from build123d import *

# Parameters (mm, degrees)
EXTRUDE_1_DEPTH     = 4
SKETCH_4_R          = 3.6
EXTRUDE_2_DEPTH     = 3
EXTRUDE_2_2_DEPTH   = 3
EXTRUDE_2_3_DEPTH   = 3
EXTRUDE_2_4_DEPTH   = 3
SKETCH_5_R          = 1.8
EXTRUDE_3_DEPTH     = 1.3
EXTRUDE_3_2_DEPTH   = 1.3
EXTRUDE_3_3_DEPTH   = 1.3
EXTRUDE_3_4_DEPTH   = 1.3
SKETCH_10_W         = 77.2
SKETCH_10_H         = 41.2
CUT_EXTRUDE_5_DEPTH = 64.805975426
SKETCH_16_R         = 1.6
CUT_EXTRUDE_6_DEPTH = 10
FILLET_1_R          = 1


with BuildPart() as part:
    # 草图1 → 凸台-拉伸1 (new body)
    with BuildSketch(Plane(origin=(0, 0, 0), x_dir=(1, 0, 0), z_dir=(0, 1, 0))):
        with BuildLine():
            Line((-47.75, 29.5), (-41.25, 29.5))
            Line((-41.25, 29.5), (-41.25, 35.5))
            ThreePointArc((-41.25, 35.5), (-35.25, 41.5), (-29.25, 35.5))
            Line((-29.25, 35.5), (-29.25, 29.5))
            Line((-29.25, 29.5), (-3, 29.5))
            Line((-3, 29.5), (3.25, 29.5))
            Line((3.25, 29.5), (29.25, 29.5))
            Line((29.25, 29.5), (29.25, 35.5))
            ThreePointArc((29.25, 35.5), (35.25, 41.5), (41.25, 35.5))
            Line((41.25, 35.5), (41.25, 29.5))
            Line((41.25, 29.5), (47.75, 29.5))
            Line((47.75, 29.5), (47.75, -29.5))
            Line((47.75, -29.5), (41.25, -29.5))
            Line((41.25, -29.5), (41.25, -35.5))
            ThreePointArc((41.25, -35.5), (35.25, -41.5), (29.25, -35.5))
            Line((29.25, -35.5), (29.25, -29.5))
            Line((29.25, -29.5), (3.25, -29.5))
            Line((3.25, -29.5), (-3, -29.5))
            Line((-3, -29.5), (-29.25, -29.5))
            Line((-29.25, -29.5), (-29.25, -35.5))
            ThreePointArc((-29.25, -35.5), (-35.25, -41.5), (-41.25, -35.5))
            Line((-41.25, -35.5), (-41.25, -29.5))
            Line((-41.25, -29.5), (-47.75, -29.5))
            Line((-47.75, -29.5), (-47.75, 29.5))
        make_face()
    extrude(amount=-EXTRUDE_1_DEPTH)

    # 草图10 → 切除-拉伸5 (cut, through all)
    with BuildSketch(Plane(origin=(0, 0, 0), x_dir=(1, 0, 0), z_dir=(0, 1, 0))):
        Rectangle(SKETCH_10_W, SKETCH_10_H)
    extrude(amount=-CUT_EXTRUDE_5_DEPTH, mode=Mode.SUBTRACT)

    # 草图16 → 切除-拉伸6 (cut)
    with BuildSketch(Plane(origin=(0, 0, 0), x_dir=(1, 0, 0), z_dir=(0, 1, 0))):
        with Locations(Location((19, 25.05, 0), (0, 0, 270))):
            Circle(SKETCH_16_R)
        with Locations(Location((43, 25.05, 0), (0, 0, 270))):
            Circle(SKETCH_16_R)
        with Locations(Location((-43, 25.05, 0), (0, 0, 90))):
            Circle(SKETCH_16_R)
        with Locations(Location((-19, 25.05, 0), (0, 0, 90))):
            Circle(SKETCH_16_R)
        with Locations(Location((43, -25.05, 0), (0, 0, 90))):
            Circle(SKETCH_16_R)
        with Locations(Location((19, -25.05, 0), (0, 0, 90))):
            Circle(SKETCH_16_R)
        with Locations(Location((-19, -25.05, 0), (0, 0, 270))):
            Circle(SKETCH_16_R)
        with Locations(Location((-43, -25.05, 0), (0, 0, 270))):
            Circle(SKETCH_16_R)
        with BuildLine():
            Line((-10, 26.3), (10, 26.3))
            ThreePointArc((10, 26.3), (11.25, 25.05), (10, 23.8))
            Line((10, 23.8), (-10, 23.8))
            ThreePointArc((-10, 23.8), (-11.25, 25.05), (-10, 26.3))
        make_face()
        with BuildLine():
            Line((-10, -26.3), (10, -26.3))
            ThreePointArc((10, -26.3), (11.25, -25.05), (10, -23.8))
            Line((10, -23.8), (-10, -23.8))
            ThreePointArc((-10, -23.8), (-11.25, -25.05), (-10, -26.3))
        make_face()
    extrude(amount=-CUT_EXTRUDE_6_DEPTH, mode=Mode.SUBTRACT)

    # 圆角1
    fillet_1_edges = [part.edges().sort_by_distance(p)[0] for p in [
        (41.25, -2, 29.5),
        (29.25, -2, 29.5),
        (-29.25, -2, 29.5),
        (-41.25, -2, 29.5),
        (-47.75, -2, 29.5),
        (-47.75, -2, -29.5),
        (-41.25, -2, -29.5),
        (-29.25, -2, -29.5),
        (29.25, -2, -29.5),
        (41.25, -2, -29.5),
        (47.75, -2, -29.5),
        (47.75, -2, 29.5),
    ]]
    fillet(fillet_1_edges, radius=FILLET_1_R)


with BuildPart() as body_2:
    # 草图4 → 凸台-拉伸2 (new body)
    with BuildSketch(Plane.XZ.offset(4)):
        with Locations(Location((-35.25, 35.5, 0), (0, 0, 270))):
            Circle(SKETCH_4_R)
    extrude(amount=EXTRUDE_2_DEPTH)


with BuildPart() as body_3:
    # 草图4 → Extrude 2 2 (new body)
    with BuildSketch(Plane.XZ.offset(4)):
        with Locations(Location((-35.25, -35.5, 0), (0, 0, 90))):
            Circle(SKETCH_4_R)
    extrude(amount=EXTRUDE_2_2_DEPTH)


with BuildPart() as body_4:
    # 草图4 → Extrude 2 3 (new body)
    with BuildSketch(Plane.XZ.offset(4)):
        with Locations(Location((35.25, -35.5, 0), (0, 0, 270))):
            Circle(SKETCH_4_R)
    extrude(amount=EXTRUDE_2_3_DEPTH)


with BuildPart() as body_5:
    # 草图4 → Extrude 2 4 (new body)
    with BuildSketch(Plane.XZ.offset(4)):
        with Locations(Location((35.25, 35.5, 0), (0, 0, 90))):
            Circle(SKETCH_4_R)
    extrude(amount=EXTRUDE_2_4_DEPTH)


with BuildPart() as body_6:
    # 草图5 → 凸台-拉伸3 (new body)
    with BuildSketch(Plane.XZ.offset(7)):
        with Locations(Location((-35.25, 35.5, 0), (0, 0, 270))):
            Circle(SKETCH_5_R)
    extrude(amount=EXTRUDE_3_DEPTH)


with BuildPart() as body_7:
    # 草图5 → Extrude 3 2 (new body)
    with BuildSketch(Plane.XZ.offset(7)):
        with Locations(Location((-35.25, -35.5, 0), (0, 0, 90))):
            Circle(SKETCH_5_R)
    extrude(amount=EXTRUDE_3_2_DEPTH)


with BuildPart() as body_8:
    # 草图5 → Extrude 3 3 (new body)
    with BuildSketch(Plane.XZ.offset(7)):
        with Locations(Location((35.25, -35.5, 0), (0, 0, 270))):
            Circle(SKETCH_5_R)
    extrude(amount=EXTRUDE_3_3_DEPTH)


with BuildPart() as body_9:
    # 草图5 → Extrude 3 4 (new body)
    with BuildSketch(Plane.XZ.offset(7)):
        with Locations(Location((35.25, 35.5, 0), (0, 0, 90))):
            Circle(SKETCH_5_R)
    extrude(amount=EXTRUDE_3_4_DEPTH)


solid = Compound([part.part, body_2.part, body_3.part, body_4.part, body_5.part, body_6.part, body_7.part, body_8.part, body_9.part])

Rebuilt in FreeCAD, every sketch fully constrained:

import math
import FreeCAD as App
import Part
import Sketcher


def edges_at(feature, points):
    """Names of the edges that pass closest to the given points."""
    edges = feature.Shape.Edges
    near = lambda p: min(range(len(edges)), key=lambda i: edges[i].distToShape(Part.Vertex(*p))[0])
    return sorted({f"Edge{near(p) + 1}" for p in points})


def add_polygon(sketch, points):
    """Adds a closed chain of lines whose ends are joined by coincident constraints."""
    first, n = sketch.GeometryCount, len(points)
    for a, b in zip(points, points[1:] + points[:1]):
        sketch.addGeometry(Part.LineSegment(App.Vector(*a, 0), App.Vector(*b, 0)), False)
    for i in range(n):
        sketch.addConstraint(Sketcher.Constraint("Coincident", first + i, 2, first + (i + 1) % n, 1))

doc = App.newDocument("Part")
body = doc.addObject("PartDesign::Body", "Body")

# Sketch on XZ plane
sketch1 = body.newObject("Sketcher::SketchObject", "Sketch")
sketch1.AttachmentSupport = (doc.getObject("XZ_Plane"), [""])
sketch1.MapMode = "FlatFace"
sketch1.addGeometry([
    Part.LineSegment(App.Vector(-41, -30, 0), App.Vector(-48, -30, 0)),  # 0
    Part.LineSegment(App.Vector(-48, -30, 0), App.Vector(-48, 30, 0)),  # 1
    Part.LineSegment(App.Vector(-48, 30, 0), App.Vector(-41, 30, 0)),  # 2
    Part.LineSegment(App.Vector(-41, 30, 0), App.Vector(-41, 36, 0)),  # 3
    Part.ArcOfCircle(Part.Circle(App.Vector(-35, 36, 0), App.Vector(0, 0, 1), 6), math.radians(0), math.radians(180)),  # 4
    Part.LineSegment(App.Vector(-29, 36, 0), App.Vector(-29, 30, 0)),  # 5
    Part.LineSegment(App.Vector(-29, 30, 0), App.Vector(29, 30, 0)),  # 6
    Part.LineSegment(App.Vector(29, 30, 0), App.Vector(29, 36, 0)),  # 7
    Part.ArcOfCircle(Part.Circle(App.Vector(35, 36, 0), App.Vector(0, 0, 1), 6), math.radians(0), math.radians(180)),  # 8
    Part.LineSegment(App.Vector(41, 36, 0), App.Vector(41, 30, 0)),  # 9
    Part.LineSegment(App.Vector(41, 30, 0), App.Vector(48, 30, 0)),  # 10
    Part.LineSegment(App.Vector(48, 30, 0), App.Vector(48, -30, 0)),  # 11
    Part.LineSegment(App.Vector(48, -30, 0), App.Vector(41, -30, 0)),  # 12
    Part.LineSegment(App.Vector(41, -30, 0), App.Vector(41, -36, 0)),  # 13
    Part.ArcOfCircle(Part.Circle(App.Vector(35, -36, 0), App.Vector(0, 0, 1), 6), math.radians(180), math.radians(360)),  # 14
    Part.LineSegment(App.Vector(29, -36, 0), App.Vector(29, -30, 0)),  # 15
    Part.LineSegment(App.Vector(29, -30, 0), App.Vector(-29, -30, 0)),  # 16
    Part.LineSegment(App.Vector(-29, -30, 0), App.Vector(-29, -36, 0)),  # 17
    Part.ArcOfCircle(Part.Circle(App.Vector(-35, -36, 0), App.Vector(0, 0, 1), 6), math.radians(180), math.radians(360)),  # 18
    Part.LineSegment(App.Vector(-41, -36, 0), App.Vector(-41, -30, 0)),  # 19
], False)
sketch1.addConstraint([
    Sketcher.Constraint("Coincident", 0, 2, 1, 1),
    Sketcher.Constraint("Coincident", 1, 2, 2, 1),
    Sketcher.Constraint("Coincident", 2, 2, 3, 1),
    Sketcher.Constraint("Tangent", 3, 2, 4, 2),
    Sketcher.Constraint("Tangent", 4, 1, 5, 1),
    Sketcher.Constraint("Coincident", 5, 2, 6, 1),
    Sketcher.Constraint("Coincident", 6, 2, 7, 1),
    Sketcher.Constraint("Tangent", 7, 2, 8, 2),
    Sketcher.Constraint("Tangent", 8, 1, 9, 1),
    Sketcher.Constraint("Coincident", 9, 2, 10, 1),
    Sketcher.Constraint("Coincident", 10, 2, 11, 1),
    Sketcher.Constraint("Coincident", 11, 2, 12, 1),
    Sketcher.Constraint("Coincident", 12, 2, 13, 1),
    Sketcher.Constraint("Tangent", 13, 2, 14, 2),
    Sketcher.Constraint("Tangent", 14, 1, 15, 1),
    Sketcher.Constraint("Coincident", 15, 2, 16, 1),
    Sketcher.Constraint("Coincident", 16, 2, 17, 1),
    Sketcher.Constraint("Tangent", 17, 2, 18, 2),
    Sketcher.Constraint("Tangent", 18, 1, 19, 1),
    Sketcher.Constraint("Coincident", 19, 2, 0, 1),
    Sketcher.Constraint("Horizontal", 0),
    Sketcher.Constraint("Vertical", 1),
    Sketcher.Constraint("Horizontal", 2),
    Sketcher.Constraint("Vertical", 3),
    Sketcher.Constraint("Vertical", 5),
    Sketcher.Constraint("Horizontal", 6),
    Sketcher.Constraint("Vertical", 7),
    Sketcher.Constraint("Vertical", 9),
    Sketcher.Constraint("Horizontal", 10),
    Sketcher.Constraint("Vertical", 11),
    Sketcher.Constraint("Horizontal", 12),
    Sketcher.Constraint("Vertical", 13),
    Sketcher.Constraint("Vertical", 15),
    Sketcher.Constraint("Horizontal", 16),
    Sketcher.Constraint("Vertical", 17),
    Sketcher.Constraint("Vertical", 19),
    Sketcher.Constraint("Equal", 4, 8),
    Sketcher.Constraint("Equal", 8, 14),
    Sketcher.Constraint("Equal", 14, 18),
    Sketcher.Constraint("Symmetric", 4, 3, 14, 3, -1, 1),
    Sketcher.Constraint("Symmetric", 8, 3, 18, 3, -1, 1),
    Sketcher.Constraint("Symmetric", 0, 2, 10, 2, -1, 1),
    Sketcher.Constraint("Symmetric", 4, 3, 8, 3, -2),
    Sketcher.Constraint("Horizontal", 2, 2, 5, 2),
    Sketcher.Constraint("Horizontal", 6, 2, 9, 2),
    Sketcher.Constraint("Horizontal", 0, 2, 11, 2),
    Sketcher.Constraint("Horizontal", 12, 2, 15, 2),
    Sketcher.Constraint("Radius", 4, 6.0),
    Sketcher.Constraint("DistanceY", 1, 1, 1, 2, 59.0),
    Sketcher.Constraint("DistanceY", 3, 1, 3, 2, 6.0),
    Sketcher.Constraint("DistanceX", 0, 2, 0, 1, 6.5),
    Sketcher.Constraint("DistanceX", 6, 1, 6, 2, 58.5),
])
pad1 = body.newObject("PartDesign::Pad", "Pad")
pad1.Profile = sketch1
pad1.Length = 4

# Sketch on XZ plane
sketch2 = body.newObject("Sketcher::SketchObject", "Sketch001")
sketch2.AttachmentSupport = (doc.getObject("XZ_Plane"), [""])
sketch2.MapMode = "FlatFace"
add_polygon(sketch2, [(-39, -21), (-39, 21), (39, 21), (39, -21)])  # lines 0-3
sketch2.addConstraint([
    Sketcher.Constraint("Vertical", 0),
    Sketcher.Constraint("Horizontal", 1),
    Sketcher.Constraint("Vertical", 2),
    Sketcher.Constraint("Horizontal", 3),
    Sketcher.Constraint("Symmetric", 0, 2, 2, 2, -1, 1),
    Sketcher.Constraint("DistanceX", 1, 1, 1, 2, 77.2),
    Sketcher.Constraint("DistanceY", 0, 1, 0, 2, 41.2),
])
pocket1 = body.newObject("PartDesign::Pocket", "Pocket")
pocket1.Profile = sketch2
pocket1.Type = "ThroughAll"
pocket1.Reversed = True

# Sketch on XZ plane
sketch3 = body.newObject("Sketcher::SketchObject", "Sketch002")
sketch3.AttachmentSupport = (doc.getObject("XZ_Plane"), [""])
sketch3.MapMode = "FlatFace"
sketch3.addGeometry([
    Part.Circle(App.Vector(19, -25.1, 0), App.Vector(0, 0, 1), 1.6),  # 0
    Part.Circle(App.Vector(43, -25.1, 0), App.Vector(0, 0, 1), 1.6),  # 1
    Part.Circle(App.Vector(-43, -25.1, 0), App.Vector(0, 0, 1), 1.6),  # 2
    Part.Circle(App.Vector(-19, -25.1, 0), App.Vector(0, 0, 1), 1.6),  # 3
    Part.Circle(App.Vector(43, 25.1, 0), App.Vector(0, 0, 1), 1.6),  # 4
    Part.Circle(App.Vector(19, 25.1, 0), App.Vector(0, 0, 1), 1.6),  # 5
    Part.Circle(App.Vector(-19, 25.1, 0), App.Vector(0, 0, 1), 1.6),  # 6
    Part.Circle(App.Vector(-43, 25.1, 0), App.Vector(0, 0, 1), 1.6),  # 7
    Part.LineSegment(App.Vector(10, -26.3, 0), App.Vector(-10, -26.3, 0)),  # 8
    Part.ArcOfCircle(Part.Circle(App.Vector(-10, -25.1, 0), App.Vector(0, 0, 1), 1.2), math.radians(90), math.radians(270)),  # 9
    Part.LineSegment(App.Vector(-10, -23.8, 0), App.Vector(10, -23.8, 0)),  # 10
    Part.ArcOfCircle(Part.Circle(App.Vector(10, -25.1, 0), App.Vector(0, 0, 1), 1.2), math.radians(-90), math.radians(90)),  # 11
    Part.LineSegment(App.Vector(-10, 26.3, 0), App.Vector(10, 26.3, 0)),  # 12
    Part.ArcOfCircle(Part.Circle(App.Vector(10, 25.1, 0), App.Vector(0, 0, 1), 1.2), math.radians(-90), math.radians(90)),  # 13
    Part.LineSegment(App.Vector(10, 23.8, 0), App.Vector(-10, 23.8, 0)),  # 14
    Part.ArcOfCircle(Part.Circle(App.Vector(-10, 25.1, 0), App.Vector(0, 0, 1), 1.2), math.radians(90), math.radians(270)),  # 15
], False)
sketch3.addConstraint([
    Sketcher.Constraint("Tangent", 8, 2, 9, 2),
    Sketcher.Constraint("Tangent", 9, 1, 10, 1),
    Sketcher.Constraint("Tangent", 10, 2, 11, 2),
    Sketcher.Constraint("Tangent", 11, 1, 8, 1),
    Sketcher.Constraint("Tangent", 12, 2, 13, 2),
    Sketcher.Constraint("Tangent", 13, 1, 14, 1),
    Sketcher.Constraint("Tangent", 14, 2, 15, 2),
    Sketcher.Constraint("Tangent", 15, 1, 12, 1),
    Sketcher.Constraint("Horizontal", 8),
    Sketcher.Constraint("Horizontal", 10),
    Sketcher.Constraint("Horizontal", 12),
    Sketcher.Constraint("Horizontal", 14),
    Sketcher.Constraint("Equal", 0, 1),
    Sketcher.Constraint("Equal", 1, 2),
    Sketcher.Constraint("Equal", 2, 3),
    Sketcher.Constraint("Equal", 3, 4),
    Sketcher.Constraint("Equal", 4, 5),
    Sketcher.Constraint("Equal", 5, 6),
    Sketcher.Constraint("Equal", 6, 7),
    Sketcher.Constraint("Equal", 11, 13),
    Sketcher.Constraint("Symmetric", 2, 3, 4, 3, -1, 1),
    Sketcher.Constraint("Symmetric", 3, 3, 5, 3, -1, 1),
    Sketcher.Constraint("Symmetric", 0, 3, 6, 3, -1, 1),
    Sketcher.Constraint("Symmetric", 1, 3, 7, 3, -1, 1),
    Sketcher.Constraint("Symmetric", 9, 3, 13, 3, -1, 1),
    Sketcher.Constraint("Symmetric", 1, 3, 2, 3, -2),
    Sketcher.Constraint("Symmetric", 0, 3, 3, 3, -2),
    Sketcher.Constraint("Horizontal", 0, 3, 1, 3),
    Sketcher.Constraint("Horizontal", 3, 3, 9, 3),
    Sketcher.Constraint("Vertical", 11, 3, 13, 3),
    Sketcher.Constraint("Vertical", 9, 3, 15, 3),
    Sketcher.Constraint("Diameter", 0, 3.2),
    Sketcher.Constraint("DistanceX", 8, 2, 8, 1, 20.0),
    Sketcher.Constraint("Radius", 9, 1.25),
    Sketcher.Constraint("DistanceX", -1, 1, 0, 3, 19.0),
    Sketcher.Constraint("DistanceX", -1, 1, 1, 3, 43.0),
    Sketcher.Constraint("DistanceY", 8, 2, -1, 1, 26.3),
])
pocket2 = body.newObject("PartDesign::Pocket", "Pocket001")
pocket2.Profile = sketch3
pocket2.Length = 10
pocket2.Reversed = True
doc.recompute()

fillet = body.newObject("PartDesign::Fillet", "Fillet")
fillet.Base = (pocket2, edges_at(pocket2, [
    (41.25, -2, 29.5),
    (29.25, -2, 29.5),
    (-29.25, -2, 29.5),
    (-41.25, -2, 29.5),
    (-47.75, -2, 29.5),
    (-47.75, -2, -29.5),
    (-41.25, -2, -29.5),
    (-29.25, -2, -29.5),
    (29.25, -2, -29.5),
    (41.25, -2, -29.5),
    (47.75, -2, -29.5),
    (47.75, -2, 29.5),
]))
fillet.Radius = 1
body2 = doc.addObject("PartDesign::Body", "Body001")

# Sketch on XZ plane
sketch4 = body2.newObject("Sketcher::SketchObject", "Sketch003")
sketch4.AttachmentSupport = (doc.getObject("XZ_Plane001"), [""])
sketch4.MapMode = "FlatFace"
sketch4.AttachmentOffset = App.Placement(App.Vector(0, 0, 4), App.Rotation())
sketch4.addGeometry(Part.Circle(App.Vector(-35.2, 35.5, 0), App.Vector(0, 0, 1), 3.6), False)
sketch4.addConstraint([
    Sketcher.Constraint("Diameter", 0, 7.2),
    Sketcher.Constraint("DistanceY", -1, 1, 0, 3, 35.5),
    Sketcher.Constraint("DistanceX", 0, 3, -1, 1, 35.25),
])
pad2 = body2.newObject("PartDesign::Pad", "Pad001")
pad2.Profile = sketch4
pad2.Length = 3
body3 = doc.addObject("PartDesign::Body", "Body002")

# Sketch on XZ plane
sketch5 = body3.newObject("Sketcher::SketchObject", "Sketch004")
sketch5.AttachmentSupport = (doc.getObject("XZ_Plane002"), [""])
sketch5.MapMode = "FlatFace"
sketch5.AttachmentOffset = App.Placement(App.Vector(0, 0, 4), App.Rotation())
sketch5.addGeometry(Part.Circle(App.Vector(-35.2, -35.5, 0), App.Vector(0, 0, 1), 3.6), False)
sketch5.addConstraint([
    Sketcher.Constraint("Diameter", 0, 7.2),
    Sketcher.Constraint("DistanceY", 0, 3, -1, 1, 35.5),
    Sketcher.Constraint("DistanceX", 0, 3, -1, 1, 35.25),
])
pad3 = body3.newObject("PartDesign::Pad", "Pad002")
pad3.Profile = sketch5
pad3.Length = 3
body4 = doc.addObject("PartDesign::Body", "Body003")

# Sketch on XZ plane
sketch6 = body4.newObject("Sketcher::SketchObject", "Sketch005")
sketch6.AttachmentSupport = (doc.getObject("XZ_Plane003"), [""])
sketch6.MapMode = "FlatFace"
sketch6.AttachmentOffset = App.Placement(App.Vector(0, 0, 4), App.Rotation())
sketch6.addGeometry(Part.Circle(App.Vector(35.2, -35.5, 0), App.Vector(0, 0, 1), 3.6), False)
sketch6.addConstraint([
    Sketcher.Constraint("Diameter", 0, 7.2),
    Sketcher.Constraint("DistanceY", 0, 3, -1, 1, 35.5),
    Sketcher.Constraint("DistanceX", -1, 1, 0, 3, 35.25),
])
pad4 = body4.newObject("PartDesign::Pad", "Pad003")
pad4.Profile = sketch6
pad4.Length = 3
body5 = doc.addObject("PartDesign::Body", "Body004")

# Sketch on XZ plane
sketch7 = body5.newObject("Sketcher::SketchObject", "Sketch006")
sketch7.AttachmentSupport = (doc.getObject("XZ_Plane004"), [""])
sketch7.MapMode = "FlatFace"
sketch7.AttachmentOffset = App.Placement(App.Vector(0, 0, 4), App.Rotation())
sketch7.addGeometry(Part.Circle(App.Vector(35.2, 35.5, 0), App.Vector(0, 0, 1), 3.6), False)
sketch7.addConstraint([
    Sketcher.Constraint("Diameter", 0, 7.2),
    Sketcher.Constraint("DistanceY", -1, 1, 0, 3, 35.5),
    Sketcher.Constraint("DistanceX", -1, 1, 0, 3, 35.25),
])
pad5 = body5.newObject("PartDesign::Pad", "Pad004")
pad5.Profile = sketch7
pad5.Length = 3
body6 = doc.addObject("PartDesign::Body", "Body005")

# Sketch on XZ plane
sketch8 = body6.newObject("Sketcher::SketchObject", "Sketch007")
sketch8.AttachmentSupport = (doc.getObject("XZ_Plane005"), [""])
sketch8.MapMode = "FlatFace"
sketch8.AttachmentOffset = App.Placement(App.Vector(0, 0, 7), App.Rotation())
sketch8.addGeometry(Part.Circle(App.Vector(-35.2, 35.5, 0), App.Vector(0, 0, 1), 1.8), False)
sketch8.addConstraint([
    Sketcher.Constraint("Diameter", 0, 3.6),
    Sketcher.Constraint("DistanceY", -1, 1, 0, 3, 35.5),
    Sketcher.Constraint("DistanceX", 0, 3, -1, 1, 35.25),
])
pad6 = body6.newObject("PartDesign::Pad", "Pad005")
pad6.Profile = sketch8
pad6.Length = 1.3
body7 = doc.addObject("PartDesign::Body", "Body006")

# Sketch on XZ plane
sketch9 = body7.newObject("Sketcher::SketchObject", "Sketch008")
sketch9.AttachmentSupport = (doc.getObject("XZ_Plane006"), [""])
sketch9.MapMode = "FlatFace"
sketch9.AttachmentOffset = App.Placement(App.Vector(0, 0, 7), App.Rotation())
sketch9.addGeometry(Part.Circle(App.Vector(-35.2, -35.5, 0), App.Vector(0, 0, 1), 1.8), False)
sketch9.addConstraint([
    Sketcher.Constraint("Diameter", 0, 3.6),
    Sketcher.Constraint("DistanceY", 0, 3, -1, 1, 35.5),
    Sketcher.Constraint("DistanceX", 0, 3, -1, 1, 35.25),
])
pad7 = body7.newObject("PartDesign::Pad", "Pad006")
pad7.Profile = sketch9
pad7.Length = 1.3
body8 = doc.addObject("PartDesign::Body", "Body007")

# Sketch on XZ plane
sketch10 = body8.newObject("Sketcher::SketchObject", "Sketch009")
sketch10.AttachmentSupport = (doc.getObject("XZ_Plane007"), [""])
sketch10.MapMode = "FlatFace"
sketch10.AttachmentOffset = App.Placement(App.Vector(0, 0, 7), App.Rotation())
sketch10.addGeometry(Part.Circle(App.Vector(35.2, -35.5, 0), App.Vector(0, 0, 1), 1.8), False)
sketch10.addConstraint([
    Sketcher.Constraint("Diameter", 0, 3.6),
    Sketcher.Constraint("DistanceY", 0, 3, -1, 1, 35.5),
    Sketcher.Constraint("DistanceX", -1, 1, 0, 3, 35.25),
])
pad8 = body8.newObject("PartDesign::Pad", "Pad007")
pad8.Profile = sketch10
pad8.Length = 1.3
body9 = doc.addObject("PartDesign::Body", "Body008")

# Sketch on XZ plane
sketch11 = body9.newObject("Sketcher::SketchObject", "Sketch010")
sketch11.AttachmentSupport = (doc.getObject("XZ_Plane008"), [""])
sketch11.MapMode = "FlatFace"
sketch11.AttachmentOffset = App.Placement(App.Vector(0, 0, 7), App.Rotation())
sketch11.addGeometry(Part.Circle(App.Vector(35.2, 35.5, 0), App.Vector(0, 0, 1), 1.8), False)
sketch11.addConstraint([
    Sketcher.Constraint("Diameter", 0, 3.6),
    Sketcher.Constraint("DistanceY", -1, 1, 0, 3, 35.5),
    Sketcher.Constraint("DistanceX", -1, 1, 0, 3, 35.25),
])
pad9 = body9.newObject("PartDesign::Pad", "Pad008")
pad9.Profile = sketch11
pad9.Length = 1.3

doc.recompute()
